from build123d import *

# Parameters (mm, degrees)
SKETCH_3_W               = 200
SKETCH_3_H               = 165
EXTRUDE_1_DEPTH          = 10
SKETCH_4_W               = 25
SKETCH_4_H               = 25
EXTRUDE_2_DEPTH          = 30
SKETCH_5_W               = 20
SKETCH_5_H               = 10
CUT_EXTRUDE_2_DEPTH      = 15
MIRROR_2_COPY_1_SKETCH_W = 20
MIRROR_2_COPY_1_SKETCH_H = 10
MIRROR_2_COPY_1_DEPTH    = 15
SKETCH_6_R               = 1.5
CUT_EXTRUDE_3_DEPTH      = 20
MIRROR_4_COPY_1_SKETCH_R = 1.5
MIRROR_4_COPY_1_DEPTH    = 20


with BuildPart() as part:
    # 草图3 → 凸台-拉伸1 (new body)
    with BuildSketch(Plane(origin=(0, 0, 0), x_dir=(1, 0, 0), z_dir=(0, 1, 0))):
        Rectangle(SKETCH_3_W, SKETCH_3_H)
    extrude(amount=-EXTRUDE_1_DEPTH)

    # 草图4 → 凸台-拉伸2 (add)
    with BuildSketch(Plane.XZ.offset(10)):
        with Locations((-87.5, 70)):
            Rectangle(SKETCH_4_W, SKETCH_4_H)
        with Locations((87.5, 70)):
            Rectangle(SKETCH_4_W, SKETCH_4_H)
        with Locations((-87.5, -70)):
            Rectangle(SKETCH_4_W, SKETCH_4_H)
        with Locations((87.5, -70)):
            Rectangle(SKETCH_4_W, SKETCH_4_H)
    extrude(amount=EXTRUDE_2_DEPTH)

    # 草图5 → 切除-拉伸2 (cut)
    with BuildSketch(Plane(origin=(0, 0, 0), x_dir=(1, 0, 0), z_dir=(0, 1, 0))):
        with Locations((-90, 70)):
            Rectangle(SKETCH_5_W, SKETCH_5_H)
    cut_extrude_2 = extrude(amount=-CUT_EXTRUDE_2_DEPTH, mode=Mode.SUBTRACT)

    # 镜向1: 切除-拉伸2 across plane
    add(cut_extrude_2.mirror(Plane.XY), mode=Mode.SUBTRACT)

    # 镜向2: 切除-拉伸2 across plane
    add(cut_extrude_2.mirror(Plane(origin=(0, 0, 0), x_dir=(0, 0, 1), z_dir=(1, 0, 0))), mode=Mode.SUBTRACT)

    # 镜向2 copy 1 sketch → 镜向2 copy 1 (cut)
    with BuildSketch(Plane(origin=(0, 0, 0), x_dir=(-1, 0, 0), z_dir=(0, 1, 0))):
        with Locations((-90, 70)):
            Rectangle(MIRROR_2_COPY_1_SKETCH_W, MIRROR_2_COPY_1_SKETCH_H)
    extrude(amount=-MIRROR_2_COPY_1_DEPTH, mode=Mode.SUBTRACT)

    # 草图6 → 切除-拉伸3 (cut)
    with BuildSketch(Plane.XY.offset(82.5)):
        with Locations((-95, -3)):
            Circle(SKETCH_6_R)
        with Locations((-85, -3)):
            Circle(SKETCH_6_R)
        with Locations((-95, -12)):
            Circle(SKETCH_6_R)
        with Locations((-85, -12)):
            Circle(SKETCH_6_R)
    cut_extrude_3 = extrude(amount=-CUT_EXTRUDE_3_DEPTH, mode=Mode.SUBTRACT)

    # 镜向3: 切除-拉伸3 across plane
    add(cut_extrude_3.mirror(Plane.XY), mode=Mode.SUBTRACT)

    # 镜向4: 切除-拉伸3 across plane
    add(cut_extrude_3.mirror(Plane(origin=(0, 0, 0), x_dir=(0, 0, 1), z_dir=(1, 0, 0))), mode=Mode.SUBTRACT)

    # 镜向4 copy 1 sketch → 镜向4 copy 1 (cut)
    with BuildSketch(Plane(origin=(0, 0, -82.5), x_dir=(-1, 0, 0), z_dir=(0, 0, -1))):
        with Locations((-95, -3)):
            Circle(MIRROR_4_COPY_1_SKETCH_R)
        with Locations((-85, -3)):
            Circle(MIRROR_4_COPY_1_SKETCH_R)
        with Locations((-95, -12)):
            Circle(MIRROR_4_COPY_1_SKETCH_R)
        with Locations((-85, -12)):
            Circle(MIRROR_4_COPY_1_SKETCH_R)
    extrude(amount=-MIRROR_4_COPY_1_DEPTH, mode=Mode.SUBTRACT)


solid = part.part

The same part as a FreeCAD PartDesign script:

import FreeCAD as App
import Part
import Sketcher
from FreeCAD import Vector
Q = App.Units.Quantity

doc = App.newDocument("Part")
body = doc.addObject("PartDesign::Body", "Body")

sketch1 = body.newObject("Sketcher::SketchObject", "Sketch")
sketch1.AttachmentSupport = (doc.getObject("XZ_Plane"), [""])
sketch1.MapMode = "FlatFace"
sketch1.addGeometry([
    Part.LineSegment(Vector(-100, -82, 0), Vector(-100, 82, 0)),
    Part.LineSegment(Vector(-100, 82, 0), Vector(100, 82, 0)),
    Part.LineSegment(Vector(100, 82, 0), Vector(100, -82, 0)),
    Part.LineSegment(Vector(100, -82, 0), Vector(-100, -82, 0)),
], False)
sketch1.addConstraint([
    Sketcher.Constraint("Coincident", 0, 2, 1, 1),
    Sketcher.Constraint("Coincident", 1, 2, 2, 1),
    Sketcher.Constraint("Coincident", 2, 2, 3, 1),
    Sketcher.Constraint("Coincident", 3, 2, 0, 1),
    Sketcher.Constraint("Vertical", 0),
    Sketcher.Constraint("Horizontal", 1),
    Sketcher.Constraint("Vertical", 2),
    Sketcher.Constraint("Horizontal", 3),
    Sketcher.Constraint("Symmetric", 0, 2, 2, 2, -1, 1),
    Sketcher.Constraint("DistanceX", 1, 1, 1, 2, Q("200 mm")),
    Sketcher.Constraint("DistanceY", 0, 1, 0, 2, Q("165 mm")),
])
pad1 = body.newObject("PartDesign::Pad", "Pad")
pad1.Profile = sketch1
pad1.Length = 10

sketch2 = body.newObject("Sketcher::SketchObject", "Sketch001")
sketch2.AttachmentSupport = (doc.getObject("XZ_Plane"), [""])
sketch2.MapMode = "FlatFace"
sketch2.AttachmentOffset = App.Placement(Vector(0, 0, 10), App.Rotation())
sketch2.addGeometry([
    Part.LineSegment(Vector(-100, 82, 0), Vector(-100, 58, 0)),
    Part.LineSegment(Vector(-100, 58, 0), Vector(-75, 58, 0)),
    Part.LineSegment(Vector(-75, 58, 0), Vector(-75, 82, 0)),
    Part.LineSegment(Vector(-75, 82, 0), Vector(-100, 82, 0)),
    Part.LineSegment(Vector(75, 82, 0), Vector(75, 58, 0)),
    Part.LineSegment(Vector(75, 58, 0), Vector(100, 58, 0)),
    Part.LineSegment(Vector(100, 58, 0), Vector(100, 82, 0)),
    Part.LineSegment(Vector(100, 82, 0), Vector(75, 82, 0)),
    Part.LineSegment(Vector(-100, -58, 0), Vector(-100, -82, 0)),
    Part.LineSegment(Vector(-100, -82, 0), Vector(-75, -82, 0)),
    Part.LineSegment(Vector(-75, -82, 0), Vector(-75, -58, 0)),
    Part.LineSegment(Vector(-75, -58, 0), Vector(-100, -58, 0)),
    Part.LineSegment(Vector(75, -58, 0), Vector(75, -82, 0)),
    Part.LineSegment(Vector(75, -82, 0), Vector(100, -82, 0)),
    Part.LineSegment(Vector(100, -82, 0), Vector(100, -58, 0)),
    Part.LineSegment(Vector(100, -58, 0), Vector(75, -58, 0)),
], False)
sketch2.addConstraint([
    Sketcher.Constraint("Coincident", 0, 2, 1, 1),
    Sketcher.Constraint("Coincident", 1, 2, 2, 1),
    Sketcher.Constraint("Coincident", 2, 2, 3, 1),
    Sketcher.Constraint("Coincident", 3, 2, 0, 1),
    Sketcher.Constraint("Coincident", 4, 2, 5, 1),
    Sketcher.Constraint("Coincident", 5, 2, 6, 1),
    Sketcher.Constraint("Coincident", 6, 2, 7, 1),
    Sketcher.Constraint("Coincident", 7, 2, 4, 1),
    Sketcher.Constraint("Coincident", 8, 2, 9, 1),
    Sketcher.Constraint("Coincident", 9, 2, 10, 1),
    Sketcher.Constraint("Coincident", 10, 2, 11, 1),
    Sketcher.Constraint("Coincident", 11, 2, 8, 1),
    Sketcher.Constraint("Coincident", 12, 2, 13, 1),
    Sketcher.Constraint("Coincident", 13, 2, 14, 1),
    Sketcher.Constraint("Coincident", 14, 2, 15, 1),
    Sketcher.Constraint("Coincident", 15, 2, 12, 1),
    Sketcher.Constraint("Vertical", 0),
    Sketcher.Constraint("Horizontal", 1),
    Sketcher.Constraint("Vertical", 2),
    Sketcher.Constraint("Horizontal", 3),
    Sketcher.Constraint("Vertical", 4),
    Sketcher.Constraint("Horizontal", 5),
    Sketcher.Constraint("Vertical", 6),
    Sketcher.Constraint("Horizontal", 7),
    Sketcher.Constraint("Vertical", 8),
    Sketcher.Constraint("Horizontal", 9),
    Sketcher.Constraint("Vertical", 10),
    Sketcher.Constraint("Horizontal", 11),
    Sketcher.Constraint("Vertical", 12),
    Sketcher.Constraint("Horizontal", 13),
    Sketcher.Constraint("Vertical", 14),
    Sketcher.Constraint("Horizontal", 15),
    Sketcher.Constraint("Symmetric", 6, 2, 8, 2, -1, 1),
    Sketcher.Constraint("Symmetric", 4, 2, 10, 2, -1, 1),
    Sketcher.Constraint("Symmetric", 2, 2, 12, 2, -1, 1),
    Sketcher.Constraint("Symmetric", 0, 2, 14, 2, -1, 1),
    Sketcher.Constraint("Symmetric", 1, 2, 4, 2, -2),
    Sketcher.Constraint("Symmetric", 3, 2, 6, 2, -2),
    Sketcher.Constraint("Equal", 15, 0),
    Sketcher.Constraint("DistanceX", 1, 1, 1, 2, Q("25 mm")),
    Sketcher.Constraint("DistanceX", 0, 2, -1, 1, Q("100 mm")),
    Sketcher.Constraint("DistanceY", 8, 2, 0, 2, Q("140 mm")),
])
pad2 = body.newObject("PartDesign::Pad", "Pad001")
pad2.Profile = sketch2
pad2.Length = 30

sketch3 = body.newObject("Sketcher::SketchObject", "Sketch002")
sketch3.AttachmentSupport = (doc.getObject("XZ_Plane"), [""])
sketch3.MapMode = "FlatFace"
sketch3.addGeometry([
    Part.LineSegment(Vector(-100, -75, 0), Vector(-100, -65, 0)),
    Part.LineSegment(Vector(-100, -65, 0), Vector(-80, -65, 0)),
    Part.LineSegment(Vector(-80, -65, 0), Vector(-80, -75, 0)),
    Part.LineSegment(Vector(-80, -75, 0), Vector(-100, -75, 0)),
], False)
sketch3.addConstraint([
    Sketcher.Constraint("Coincident", 0, 2, 1, 1),
    Sketcher.Constraint("Coincident", 1, 2, 2, 1),
    Sketcher.Constraint("Coincident", 2, 2, 3, 1),
    Sketcher.Constraint("Coincident", 3, 2, 0, 1),
    Sketcher.Constraint("Vertical", 0),
    Sketcher.Constraint("Horizontal", 1),
    Sketcher.Constraint("Vertical", 2),
    Sketcher.Constraint("Horizontal", 3),
    Sketcher.Constraint("DistanceX", 1, 1, 1, 2, Q("20 mm")),
    Sketcher.Constraint("DistanceY", 0, 1, 0, 2, Q("10 mm")),
    Sketcher.Constraint("DistanceX", 0, 2, -1, 1, Q("100 mm")),
    Sketcher.Constraint("DistanceY", 0, 2, -1, 1, Q("65 mm")),
])
pocket1 = body.newObject("PartDesign::Pocket", "Pocket")
pocket1.Profile = sketch3
pocket1.Length = 15
pocket1.Reversed = True
doc.recompute()

mirrored = body.newObject("PartDesign::Mirrored", "Mirrored")
mirrored.Originals = [pocket1]
mirrored.MirrorPlane = (doc.getObject("XY_Plane"), [""])
body.Tip = mirrored
doc.recompute()

mirrored2 = body.newObject("PartDesign::Mirrored", "Mirrored001")
mirrored2.Originals = [pocket1]
mirrored2.MirrorPlane = (doc.getObject("YZ_Plane"), [""])
body.Tip = mirrored2

sketch4 = body.newObject("Sketcher::SketchObject", "Sketch003")
sketch4.AttachmentSupport = (doc.getObject("XZ_Plane"), [""])
sketch4.MapMode = "FlatFace"
sketch4.addGeometry([
    Part.LineSegment(Vector(100, 75, 0), Vector(100, 65, 0)),
    Part.LineSegment(Vector(100, 65, 0), Vector(80, 65, 0)),
    Part.LineSegment(Vector(80, 65, 0), Vector(80, 75, 0)),
    Part.LineSegment(Vector(80, 75, 0), Vector(100, 75, 0)),
], False)
sketch4.addConstraint([
    Sketcher.Constraint("Coincident", 0, 2, 1, 1),
    Sketcher.Constraint("Coincident", 1, 2, 2, 1),
    Sketcher.Constraint("Coincident", 2, 2, 3, 1),
    Sketcher.Constraint("Coincident", 3, 2, 0, 1),
    Sketcher.Constraint("Vertical", 0),
    Sketcher.Constraint("Horizontal", 1),
    Sketcher.Constraint("Vertical", 2),
    Sketcher.Constraint("Horizontal", 3),
    Sketcher.Constraint("DistanceX", 1, 2, 1, 1, Q("20 mm")),
    Sketcher.Constraint("DistanceY", 0, 2, 0, 1, Q("10 mm")),
    Sketcher.Constraint("DistanceX", -1, 1, 0, 2, Q("100 mm")),
    Sketcher.Constraint("DistanceY", -1, 1, 0, 2, Q("65 mm")),
])
pocket2 = body.newObject("PartDesign::Pocket", "Pocket001")
pocket2.Profile = sketch4
pocket2.Length = 15
pocket2.Reversed = True

sketch5 = body.newObject("Sketcher::SketchObject", "Sketch004")
sketch5.AttachmentSupport = (doc.getObject("XY_Plane"), [""])
sketch5.MapMode = "FlatFace"
sketch5.AttachmentOffset = App.Placement(Vector(0, 0, 82.5), App.Rotation())
sketch5.addGeometry([
    Part.Circle(Vector(-95, -3, 0), Vector(0, 0, 1), 1.5),
    Part.Circle(Vector(-85, -3, 0), Vector(0, 0, 1), 1.5),
    Part.Circle(Vector(-95, -12, 0), Vector(0, 0, 1), 1.5),
    Part.Circle(Vector(-85, -12, 0), Vector(0, 0, 1), 1.5),
], False)
sketch5.addConstraint([
    Sketcher.Constraint("Equal", 0, 1),
    Sketcher.Constraint("Equal", 1, 2),
    Sketcher.Constraint("Equal", 2, 3),
    Sketcher.Constraint("Horizontal", 0, 3, 1, 3),
    Sketcher.Constraint("Horizontal", 2, 3, 3, 3),
    Sketcher.Constraint("Vertical", 0, 3, 2, 3),
    Sketcher.Constraint("Vertical", 1, 3, 3, 3),
    Sketcher.Constraint("Diameter", 0, Q("3 mm")),
    Sketcher.Constraint("DistanceX", 0, 3, -1, 1, Q("95 mm")),
    Sketcher.Constraint("DistanceY", 0, 3, -1, 1, Q("3 mm")),
    Sketcher.Constraint("DistanceX", 1, 3, -1, 1, Q("85 mm")),
    Sketcher.Constraint("DistanceY", 2, 3, -1, 1, Q("12 mm")),
])
pocket3 = body.newObject("PartDesign::Pocket", "Pocket002")
pocket3.Profile = sketch5
pocket3.Length = 20
doc.recompute()

mirrored3 = body.newObject("PartDesign::Mirrored", "Mirrored002")
mirrored3.Originals = [pocket3]
mirrored3.MirrorPlane = (doc.getObject("XY_Plane"), [""])
body.Tip = mirrored3
doc.recompute()

mirrored4 = body.newObject("PartDesign::Mirrored", "Mirrored003")
mirrored4.Originals = [pocket3]
mirrored4.MirrorPlane = (doc.getObject("YZ_Plane"), [""])
body.Tip = mirrored4

sketch6 = body.newObject("Sketcher::SketchObject", "Sketch005")
sketch6.AttachmentSupport = (doc.getObject("XY_Plane"), [""])
sketch6.MapMode = "FlatFace"
sketch6.AttachmentOffset = App.Placement(Vector(0, 0, -82.5), App.Rotation())
sketch6.addGeometry([
    Part.Circle(Vector(95, -3, 0), Vector(0, 0, 1), 1.5),
    Part.Circle(Vector(85, -3, 0), Vector(0, 0, 1), 1.5),
    Part.Circle(Vector(95, -12, 0), Vector(0, 0, 1), 1.5),
    Part.Circle(Vector(85, -12, 0), Vector(0, 0, 1), 1.5),
], False)
sketch6.addConstraint([
    Sketcher.Constraint("Equal", 0, 1),
    Sketcher.Constraint("Equal", 1, 2),
    Sketcher.Constraint("Equal", 2, 3),
    Sketcher.Constraint("Horizontal", 0, 3, 1, 3),
    Sketcher.Constraint("Horizontal", 2, 3, 3, 3),
    Sketcher.Constraint("Vertical", 0, 3, 2, 3),
    Sketcher.Constraint("Vertical", 1, 3, 3, 3),
    Sketcher.Constraint("Diameter", 0, Q("3 mm")),
    Sketcher.Constraint("DistanceX", -1, 1, 0, 3, Q("95 mm")),
    Sketcher.Constraint("DistanceY", 0, 3, -1, 1, Q("3 mm")),
    Sketcher.Constraint("DistanceX", -1, 1, 1, 3, Q("85 mm")),
    Sketcher.Constraint("DistanceY", 2, 3, -1, 1, Q("12 mm")),
])
pocket4 = body.newObject("PartDesign::Pocket", "Pocket003")
pocket4.Profile = sketch6
pocket4.Length = 20
pocket4.Reversed = True

doc.recompute()
